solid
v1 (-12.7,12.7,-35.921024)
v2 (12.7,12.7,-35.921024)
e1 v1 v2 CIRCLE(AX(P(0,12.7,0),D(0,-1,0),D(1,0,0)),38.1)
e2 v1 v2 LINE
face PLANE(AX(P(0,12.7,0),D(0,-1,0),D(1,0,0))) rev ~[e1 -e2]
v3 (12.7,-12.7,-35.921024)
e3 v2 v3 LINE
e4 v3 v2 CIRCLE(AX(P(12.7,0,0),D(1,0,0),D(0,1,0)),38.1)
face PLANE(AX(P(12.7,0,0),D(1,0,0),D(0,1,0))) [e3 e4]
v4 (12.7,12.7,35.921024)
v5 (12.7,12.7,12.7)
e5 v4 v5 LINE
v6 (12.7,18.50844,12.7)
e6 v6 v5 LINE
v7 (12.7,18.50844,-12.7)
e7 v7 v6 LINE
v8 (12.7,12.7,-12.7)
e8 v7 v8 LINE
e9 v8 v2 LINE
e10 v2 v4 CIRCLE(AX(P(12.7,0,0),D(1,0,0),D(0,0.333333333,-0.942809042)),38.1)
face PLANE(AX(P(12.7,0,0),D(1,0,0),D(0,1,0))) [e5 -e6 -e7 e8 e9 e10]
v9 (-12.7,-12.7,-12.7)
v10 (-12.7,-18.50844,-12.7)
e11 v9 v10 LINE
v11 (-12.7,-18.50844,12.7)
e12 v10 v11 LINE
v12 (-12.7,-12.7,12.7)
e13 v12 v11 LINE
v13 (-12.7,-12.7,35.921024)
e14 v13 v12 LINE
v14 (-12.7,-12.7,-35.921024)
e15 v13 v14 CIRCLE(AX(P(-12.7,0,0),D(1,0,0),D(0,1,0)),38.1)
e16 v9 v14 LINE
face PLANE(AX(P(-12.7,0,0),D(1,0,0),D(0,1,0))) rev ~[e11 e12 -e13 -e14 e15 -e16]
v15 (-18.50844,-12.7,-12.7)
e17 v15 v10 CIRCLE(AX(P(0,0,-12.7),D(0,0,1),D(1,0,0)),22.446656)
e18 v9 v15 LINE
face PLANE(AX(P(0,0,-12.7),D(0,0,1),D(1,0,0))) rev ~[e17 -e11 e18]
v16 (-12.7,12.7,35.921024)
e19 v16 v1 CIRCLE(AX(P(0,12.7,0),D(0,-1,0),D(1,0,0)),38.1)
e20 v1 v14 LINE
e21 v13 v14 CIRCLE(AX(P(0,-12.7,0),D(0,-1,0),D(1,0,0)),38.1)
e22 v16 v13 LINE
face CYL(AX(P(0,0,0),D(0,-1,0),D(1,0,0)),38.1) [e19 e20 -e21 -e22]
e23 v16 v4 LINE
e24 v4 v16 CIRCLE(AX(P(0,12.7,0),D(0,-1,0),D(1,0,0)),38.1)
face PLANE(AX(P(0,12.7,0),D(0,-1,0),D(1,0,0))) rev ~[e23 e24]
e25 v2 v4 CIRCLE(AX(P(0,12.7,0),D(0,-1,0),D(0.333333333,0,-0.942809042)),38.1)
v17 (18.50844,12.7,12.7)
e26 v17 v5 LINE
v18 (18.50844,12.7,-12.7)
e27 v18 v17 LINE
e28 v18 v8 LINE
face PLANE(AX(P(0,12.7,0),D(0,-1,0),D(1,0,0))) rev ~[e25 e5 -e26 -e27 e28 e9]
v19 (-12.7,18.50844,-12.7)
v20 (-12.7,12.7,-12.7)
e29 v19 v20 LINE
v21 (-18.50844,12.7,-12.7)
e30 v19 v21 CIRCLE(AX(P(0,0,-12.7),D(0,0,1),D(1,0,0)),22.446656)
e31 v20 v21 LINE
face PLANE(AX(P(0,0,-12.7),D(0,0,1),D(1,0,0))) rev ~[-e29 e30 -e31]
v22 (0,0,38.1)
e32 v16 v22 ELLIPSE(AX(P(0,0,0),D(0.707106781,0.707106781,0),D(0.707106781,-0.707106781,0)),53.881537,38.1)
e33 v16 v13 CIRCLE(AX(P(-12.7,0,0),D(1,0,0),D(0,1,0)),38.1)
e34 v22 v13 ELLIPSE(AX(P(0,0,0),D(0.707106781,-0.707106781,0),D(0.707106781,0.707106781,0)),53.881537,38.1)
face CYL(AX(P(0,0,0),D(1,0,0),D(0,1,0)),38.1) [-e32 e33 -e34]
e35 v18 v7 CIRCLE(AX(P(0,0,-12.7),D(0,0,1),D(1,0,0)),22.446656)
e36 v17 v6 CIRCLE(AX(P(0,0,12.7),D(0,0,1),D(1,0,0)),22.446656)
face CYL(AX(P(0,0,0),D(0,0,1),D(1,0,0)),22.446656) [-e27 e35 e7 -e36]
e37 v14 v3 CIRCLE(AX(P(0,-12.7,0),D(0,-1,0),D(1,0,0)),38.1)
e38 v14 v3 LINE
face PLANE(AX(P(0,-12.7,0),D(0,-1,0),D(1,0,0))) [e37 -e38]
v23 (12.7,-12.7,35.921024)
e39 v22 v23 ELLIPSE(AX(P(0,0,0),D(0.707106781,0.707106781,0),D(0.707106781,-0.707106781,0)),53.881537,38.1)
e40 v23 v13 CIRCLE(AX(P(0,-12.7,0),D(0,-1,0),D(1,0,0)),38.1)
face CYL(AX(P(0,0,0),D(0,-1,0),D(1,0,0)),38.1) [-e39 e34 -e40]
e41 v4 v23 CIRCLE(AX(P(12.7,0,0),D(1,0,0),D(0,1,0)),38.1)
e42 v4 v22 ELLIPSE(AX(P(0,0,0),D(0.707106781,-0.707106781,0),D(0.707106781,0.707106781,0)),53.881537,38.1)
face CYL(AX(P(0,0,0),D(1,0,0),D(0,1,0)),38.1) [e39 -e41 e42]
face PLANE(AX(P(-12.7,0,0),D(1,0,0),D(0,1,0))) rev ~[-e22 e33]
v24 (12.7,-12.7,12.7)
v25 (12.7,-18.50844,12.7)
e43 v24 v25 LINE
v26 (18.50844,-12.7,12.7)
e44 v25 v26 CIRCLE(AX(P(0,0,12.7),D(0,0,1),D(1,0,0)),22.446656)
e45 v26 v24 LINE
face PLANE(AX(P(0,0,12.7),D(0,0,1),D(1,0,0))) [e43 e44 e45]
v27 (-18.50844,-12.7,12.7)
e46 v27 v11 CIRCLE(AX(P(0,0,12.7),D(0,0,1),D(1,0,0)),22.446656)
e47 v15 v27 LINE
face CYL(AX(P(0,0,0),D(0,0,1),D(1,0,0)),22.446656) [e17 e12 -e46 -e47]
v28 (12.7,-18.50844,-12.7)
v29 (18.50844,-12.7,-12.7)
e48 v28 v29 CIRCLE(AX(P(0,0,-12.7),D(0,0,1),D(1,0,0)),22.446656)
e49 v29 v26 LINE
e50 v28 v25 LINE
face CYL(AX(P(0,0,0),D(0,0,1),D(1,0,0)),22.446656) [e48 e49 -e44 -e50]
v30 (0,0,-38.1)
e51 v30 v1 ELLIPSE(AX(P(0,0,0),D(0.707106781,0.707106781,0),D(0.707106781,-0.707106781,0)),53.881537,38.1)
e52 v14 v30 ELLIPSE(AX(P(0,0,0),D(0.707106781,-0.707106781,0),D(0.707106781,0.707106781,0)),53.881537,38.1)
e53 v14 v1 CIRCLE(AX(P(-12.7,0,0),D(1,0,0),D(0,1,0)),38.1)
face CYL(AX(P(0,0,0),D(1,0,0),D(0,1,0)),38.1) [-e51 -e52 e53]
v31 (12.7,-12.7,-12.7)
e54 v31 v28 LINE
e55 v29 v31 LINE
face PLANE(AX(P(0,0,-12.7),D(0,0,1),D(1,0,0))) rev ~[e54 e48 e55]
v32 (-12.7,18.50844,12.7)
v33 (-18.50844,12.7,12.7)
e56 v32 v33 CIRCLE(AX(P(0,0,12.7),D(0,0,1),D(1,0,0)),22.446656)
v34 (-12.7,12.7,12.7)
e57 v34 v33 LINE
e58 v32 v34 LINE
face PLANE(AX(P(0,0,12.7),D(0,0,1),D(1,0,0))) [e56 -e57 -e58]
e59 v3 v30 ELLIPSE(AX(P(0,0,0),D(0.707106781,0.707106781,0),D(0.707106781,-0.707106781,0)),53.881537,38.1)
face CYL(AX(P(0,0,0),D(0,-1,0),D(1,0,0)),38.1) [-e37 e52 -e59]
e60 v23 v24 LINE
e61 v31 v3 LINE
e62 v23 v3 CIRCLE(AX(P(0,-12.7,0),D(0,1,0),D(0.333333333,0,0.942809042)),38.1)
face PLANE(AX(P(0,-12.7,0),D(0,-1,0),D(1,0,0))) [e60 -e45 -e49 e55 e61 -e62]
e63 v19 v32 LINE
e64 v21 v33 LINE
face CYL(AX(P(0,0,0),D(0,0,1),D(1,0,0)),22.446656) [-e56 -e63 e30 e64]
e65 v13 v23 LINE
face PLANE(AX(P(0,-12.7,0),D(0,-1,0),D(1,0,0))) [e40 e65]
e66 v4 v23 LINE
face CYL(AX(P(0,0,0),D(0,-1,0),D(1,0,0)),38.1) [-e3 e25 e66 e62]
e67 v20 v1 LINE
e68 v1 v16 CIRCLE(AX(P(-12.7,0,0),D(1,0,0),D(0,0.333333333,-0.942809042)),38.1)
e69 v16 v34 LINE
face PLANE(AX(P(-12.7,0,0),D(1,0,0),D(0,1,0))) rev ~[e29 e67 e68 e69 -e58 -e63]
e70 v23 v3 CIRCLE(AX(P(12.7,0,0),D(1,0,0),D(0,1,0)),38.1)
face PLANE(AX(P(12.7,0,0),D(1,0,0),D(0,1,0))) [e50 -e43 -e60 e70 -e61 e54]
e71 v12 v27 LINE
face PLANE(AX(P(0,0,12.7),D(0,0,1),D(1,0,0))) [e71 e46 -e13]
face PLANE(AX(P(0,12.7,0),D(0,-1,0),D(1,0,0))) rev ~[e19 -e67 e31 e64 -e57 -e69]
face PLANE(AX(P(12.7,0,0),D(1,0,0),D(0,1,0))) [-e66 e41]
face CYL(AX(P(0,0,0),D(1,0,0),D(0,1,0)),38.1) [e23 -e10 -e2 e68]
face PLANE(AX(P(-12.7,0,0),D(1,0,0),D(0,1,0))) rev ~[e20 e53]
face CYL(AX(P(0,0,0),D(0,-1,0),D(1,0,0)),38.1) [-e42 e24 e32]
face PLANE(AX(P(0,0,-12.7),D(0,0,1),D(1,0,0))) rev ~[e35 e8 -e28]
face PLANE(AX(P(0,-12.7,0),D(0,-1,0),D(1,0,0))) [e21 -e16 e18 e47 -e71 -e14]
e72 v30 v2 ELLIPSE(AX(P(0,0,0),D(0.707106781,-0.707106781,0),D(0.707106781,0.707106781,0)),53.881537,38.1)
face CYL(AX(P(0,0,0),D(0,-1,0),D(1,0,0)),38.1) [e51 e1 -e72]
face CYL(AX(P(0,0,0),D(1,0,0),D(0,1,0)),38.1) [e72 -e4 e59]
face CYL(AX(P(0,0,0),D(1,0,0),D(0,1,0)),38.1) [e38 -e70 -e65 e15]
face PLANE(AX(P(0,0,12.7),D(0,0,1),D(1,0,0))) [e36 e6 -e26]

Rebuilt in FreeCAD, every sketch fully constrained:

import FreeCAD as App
import Part
import Sketcher

V = App.Vector
Q = App.Units.Quantity

doc = App.newDocument("Part")
body = doc.addObject("PartDesign::Body", "Body")

# Sketch on YZ plane
sketch1 = body.newObject("Sketcher::SketchObject", "Sketch")
sketch1.AttachmentSupport = (doc.getObject("YZ_Plane"), [""])
sketch1.MapMode = "FlatFace"
sketch1.addGeometry(Part.Circle(V(0, 0, 0), V(0, 0, 1), 38), False)
sketch1.addConstraint([
    Sketcher.Constraint("Coincident", 0, 3, -1, 1),
    Sketcher.Constraint("Diameter", 0, Q("3 in")),
])
pad1 = body.newObject("PartDesign::Pad", "Pad")
pad1.Profile = sketch1
pad1.Length = Q("1 in")
pad1.Midplane = True

# Sketch on XZ plane
sketch2 = body.newObject("Sketcher::SketchObject", "Sketch001")
sketch2.AttachmentSupport = (doc.getObject("XZ_Plane"), [""])
sketch2.MapMode = "FlatFace"
sketch2.addGeometry(Part.Circle(V(0, 0, 0), V(0, 0, 1), 38), False)
sketch2.addConstraint([
    Sketcher.Constraint("Coincident", 0, 3, -1, 1),
    Sketcher.Constraint("Diameter", 0, Q("3 in")),
])
pad2 = body.newObject("PartDesign::Pad", "Pad001")
pad2.Profile = sketch2
pad2.Length = Q("1 in")
pad2.Midplane = True

# Sketch on XY plane
sketch3 = body.newObject("Sketcher::SketchObject", "Sketch002")
sketch3.AttachmentSupport = (doc.getObject("XY_Plane"), [""])
sketch3.MapMode = "FlatFace"
sketch3.addGeometry(Part.Circle(V(0, 0, 0), V(0, 0, 1), 22), False)
sketch3.addConstraint([
    Sketcher.Constraint("Coincident", 0, 3, -1, 1),
    Sketcher.Constraint("Diameter", 0, Q("44.893312 mm")),
])
pad3 = body.newObject("PartDesign::Pad", "Pad002")
pad3.Profile = sketch3
pad3.Length = Q("1 in")
pad3.Midplane = True

doc.recompute()
